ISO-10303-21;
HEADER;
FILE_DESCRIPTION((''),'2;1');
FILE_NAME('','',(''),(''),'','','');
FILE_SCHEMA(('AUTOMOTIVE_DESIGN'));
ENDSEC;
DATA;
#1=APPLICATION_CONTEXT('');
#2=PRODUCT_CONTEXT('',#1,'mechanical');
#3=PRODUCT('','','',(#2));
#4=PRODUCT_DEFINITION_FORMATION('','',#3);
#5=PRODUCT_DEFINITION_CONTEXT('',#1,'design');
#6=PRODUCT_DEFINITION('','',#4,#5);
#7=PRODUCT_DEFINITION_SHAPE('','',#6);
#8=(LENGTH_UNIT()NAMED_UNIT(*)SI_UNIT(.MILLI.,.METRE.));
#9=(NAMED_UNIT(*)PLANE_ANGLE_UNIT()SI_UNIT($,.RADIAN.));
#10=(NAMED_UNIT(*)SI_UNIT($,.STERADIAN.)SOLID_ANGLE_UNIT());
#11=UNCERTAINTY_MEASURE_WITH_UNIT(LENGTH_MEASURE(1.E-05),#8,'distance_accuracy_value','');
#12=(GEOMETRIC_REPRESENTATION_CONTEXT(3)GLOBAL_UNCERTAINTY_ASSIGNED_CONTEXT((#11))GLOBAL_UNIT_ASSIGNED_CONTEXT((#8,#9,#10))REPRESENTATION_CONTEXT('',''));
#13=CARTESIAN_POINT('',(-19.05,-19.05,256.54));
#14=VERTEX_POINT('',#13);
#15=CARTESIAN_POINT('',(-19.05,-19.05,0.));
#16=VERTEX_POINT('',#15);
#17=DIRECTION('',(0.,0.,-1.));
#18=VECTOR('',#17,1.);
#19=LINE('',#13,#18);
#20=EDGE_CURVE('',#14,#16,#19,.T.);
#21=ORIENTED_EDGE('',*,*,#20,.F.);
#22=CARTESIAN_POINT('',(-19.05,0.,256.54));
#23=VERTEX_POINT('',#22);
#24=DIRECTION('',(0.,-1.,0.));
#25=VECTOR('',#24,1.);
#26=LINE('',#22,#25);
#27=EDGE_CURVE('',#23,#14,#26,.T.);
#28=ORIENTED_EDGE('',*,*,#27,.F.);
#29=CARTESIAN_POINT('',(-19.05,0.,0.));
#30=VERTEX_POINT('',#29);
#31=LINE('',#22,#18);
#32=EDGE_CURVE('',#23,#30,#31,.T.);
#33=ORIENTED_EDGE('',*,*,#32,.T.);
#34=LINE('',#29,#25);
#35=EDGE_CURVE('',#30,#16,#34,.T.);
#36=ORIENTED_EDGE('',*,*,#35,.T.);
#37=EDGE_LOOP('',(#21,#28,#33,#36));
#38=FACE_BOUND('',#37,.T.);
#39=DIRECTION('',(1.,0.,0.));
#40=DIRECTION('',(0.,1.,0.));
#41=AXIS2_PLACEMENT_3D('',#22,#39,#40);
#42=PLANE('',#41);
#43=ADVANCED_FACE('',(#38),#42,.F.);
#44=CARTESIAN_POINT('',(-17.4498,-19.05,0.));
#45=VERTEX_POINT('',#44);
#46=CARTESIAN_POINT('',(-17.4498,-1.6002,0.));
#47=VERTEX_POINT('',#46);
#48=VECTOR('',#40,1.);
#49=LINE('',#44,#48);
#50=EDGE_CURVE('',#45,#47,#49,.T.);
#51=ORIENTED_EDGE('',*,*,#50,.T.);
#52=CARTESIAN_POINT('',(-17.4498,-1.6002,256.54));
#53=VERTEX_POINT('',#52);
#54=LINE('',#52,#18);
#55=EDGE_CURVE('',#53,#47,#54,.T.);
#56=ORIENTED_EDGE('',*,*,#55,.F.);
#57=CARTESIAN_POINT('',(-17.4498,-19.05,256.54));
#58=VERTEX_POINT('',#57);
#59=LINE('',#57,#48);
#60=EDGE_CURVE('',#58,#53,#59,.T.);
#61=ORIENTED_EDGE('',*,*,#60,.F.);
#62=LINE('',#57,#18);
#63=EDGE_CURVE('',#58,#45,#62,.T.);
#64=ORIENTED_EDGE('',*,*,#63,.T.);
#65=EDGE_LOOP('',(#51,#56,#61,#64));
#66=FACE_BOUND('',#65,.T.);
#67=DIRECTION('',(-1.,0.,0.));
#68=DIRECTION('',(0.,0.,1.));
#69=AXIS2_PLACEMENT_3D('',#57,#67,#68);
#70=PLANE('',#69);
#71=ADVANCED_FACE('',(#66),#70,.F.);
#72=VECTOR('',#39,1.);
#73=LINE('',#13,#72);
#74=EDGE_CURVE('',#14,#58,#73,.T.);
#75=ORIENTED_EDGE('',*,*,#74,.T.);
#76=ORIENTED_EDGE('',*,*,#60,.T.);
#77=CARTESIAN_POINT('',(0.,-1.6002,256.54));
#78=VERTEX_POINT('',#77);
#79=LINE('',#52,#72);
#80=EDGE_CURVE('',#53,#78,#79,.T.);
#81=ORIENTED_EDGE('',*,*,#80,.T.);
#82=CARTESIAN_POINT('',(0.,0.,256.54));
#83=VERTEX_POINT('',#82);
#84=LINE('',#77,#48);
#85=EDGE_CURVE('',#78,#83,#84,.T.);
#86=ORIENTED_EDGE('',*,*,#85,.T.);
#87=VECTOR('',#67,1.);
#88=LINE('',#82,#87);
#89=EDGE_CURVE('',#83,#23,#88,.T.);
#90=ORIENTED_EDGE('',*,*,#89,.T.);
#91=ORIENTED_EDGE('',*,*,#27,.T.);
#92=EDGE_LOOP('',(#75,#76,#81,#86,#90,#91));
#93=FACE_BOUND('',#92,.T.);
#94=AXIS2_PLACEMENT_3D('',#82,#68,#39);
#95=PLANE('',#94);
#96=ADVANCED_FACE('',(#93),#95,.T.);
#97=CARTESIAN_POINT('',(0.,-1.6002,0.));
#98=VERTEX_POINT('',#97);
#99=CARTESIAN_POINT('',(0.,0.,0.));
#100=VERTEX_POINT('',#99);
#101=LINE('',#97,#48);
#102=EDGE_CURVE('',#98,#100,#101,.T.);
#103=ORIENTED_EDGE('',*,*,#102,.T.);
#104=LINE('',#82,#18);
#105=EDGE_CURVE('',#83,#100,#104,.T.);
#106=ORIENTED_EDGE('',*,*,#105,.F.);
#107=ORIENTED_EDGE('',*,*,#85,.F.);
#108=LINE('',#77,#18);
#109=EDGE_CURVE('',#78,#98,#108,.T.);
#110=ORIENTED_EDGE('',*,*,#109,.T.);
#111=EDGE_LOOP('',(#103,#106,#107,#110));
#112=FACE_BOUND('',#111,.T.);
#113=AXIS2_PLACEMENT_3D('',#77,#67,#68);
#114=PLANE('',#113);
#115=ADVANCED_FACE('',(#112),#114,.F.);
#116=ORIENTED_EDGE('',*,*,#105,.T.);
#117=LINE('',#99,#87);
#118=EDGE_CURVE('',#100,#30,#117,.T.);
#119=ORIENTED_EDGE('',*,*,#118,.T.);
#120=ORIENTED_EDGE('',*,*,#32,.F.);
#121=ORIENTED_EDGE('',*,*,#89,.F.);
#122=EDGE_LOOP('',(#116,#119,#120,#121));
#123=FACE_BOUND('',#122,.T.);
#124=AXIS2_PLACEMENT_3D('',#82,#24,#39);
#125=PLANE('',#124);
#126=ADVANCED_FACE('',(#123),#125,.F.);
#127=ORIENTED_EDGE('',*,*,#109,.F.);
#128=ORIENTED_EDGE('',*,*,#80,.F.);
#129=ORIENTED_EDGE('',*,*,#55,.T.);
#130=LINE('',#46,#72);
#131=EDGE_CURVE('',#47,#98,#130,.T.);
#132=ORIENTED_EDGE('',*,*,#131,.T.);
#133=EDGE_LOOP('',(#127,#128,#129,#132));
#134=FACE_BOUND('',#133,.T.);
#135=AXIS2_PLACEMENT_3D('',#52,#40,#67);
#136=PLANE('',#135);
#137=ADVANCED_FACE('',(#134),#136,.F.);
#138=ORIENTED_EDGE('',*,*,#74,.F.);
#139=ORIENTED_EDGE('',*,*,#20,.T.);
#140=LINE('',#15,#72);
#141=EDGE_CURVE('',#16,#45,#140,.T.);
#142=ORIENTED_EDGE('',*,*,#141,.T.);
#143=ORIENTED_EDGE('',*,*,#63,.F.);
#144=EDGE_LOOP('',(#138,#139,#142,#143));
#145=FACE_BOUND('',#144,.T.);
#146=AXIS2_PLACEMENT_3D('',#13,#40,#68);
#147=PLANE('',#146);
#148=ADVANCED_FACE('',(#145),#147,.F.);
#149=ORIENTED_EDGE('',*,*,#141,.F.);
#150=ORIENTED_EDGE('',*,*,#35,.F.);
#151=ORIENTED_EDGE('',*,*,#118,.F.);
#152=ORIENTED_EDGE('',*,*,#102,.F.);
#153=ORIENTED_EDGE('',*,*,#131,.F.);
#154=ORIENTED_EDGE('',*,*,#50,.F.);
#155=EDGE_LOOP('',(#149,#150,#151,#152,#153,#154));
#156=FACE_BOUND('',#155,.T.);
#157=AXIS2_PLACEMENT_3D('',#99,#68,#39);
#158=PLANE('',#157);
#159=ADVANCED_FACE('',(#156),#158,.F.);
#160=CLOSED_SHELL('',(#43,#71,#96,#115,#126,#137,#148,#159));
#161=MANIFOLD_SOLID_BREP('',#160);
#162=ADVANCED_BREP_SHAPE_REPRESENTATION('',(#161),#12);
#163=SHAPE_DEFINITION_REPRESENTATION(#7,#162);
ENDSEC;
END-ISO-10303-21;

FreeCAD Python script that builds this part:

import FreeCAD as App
import Part
import Sketcher

V = App.Vector
Q = App.Units.Quantity

doc = App.newDocument("Part")
body = doc.addObject("PartDesign::Body", "Body")

# Sketch on XY plane
sketch1 = body.newObject("Sketcher::SketchObject", "Sketch")
sketch1.AttachmentSupport = (doc.getObject("XY_Plane"), [""])
sketch1.MapMode = "FlatFace"
sketch1.addGeometry([
    Part.LineSegment(V(0, 0, 0), V(-19.1, 0, 0)),  # 0
    Part.LineSegment(V(-19.1, 0, 0), V(-19.1, -19.1, 0)),  # 1
    Part.LineSegment(V(-19.1, -19.1, 0), V(-17.4, -19.1, 0)),  # 2
    Part.LineSegment(V(-17.4, -19.1, 0), V(-17.4, -1.6, 0)),  # 3
    Part.LineSegment(V(-17.4, -1.6, 0), V(0, -1.6, 0)),  # 4
    Part.LineSegment(V(0, -1.6, 0), V(0, 0, 0)),  # 5
], False)
sketch1.addConstraint([
    Sketcher.Constraint("Coincident", 0, 2, 1, 1),
    Sketcher.Constraint("Coincident", 1, 2, 2, 1),
    Sketcher.Constraint("Coincident", 2, 2, 3, 1),
    Sketcher.Constraint("Coincident", 3, 2, 4, 1),
    Sketcher.Constraint("Coincident", 4, 2, 5, 1),
    Sketcher.Constraint("Coincident", 5, 2, 0, 1),
    Sketcher.Constraint("Horizontal", 0),
    Sketcher.Constraint("Vertical", 1),
    Sketcher.Constraint("Horizontal", 2),
    Sketcher.Constraint("Vertical", 3),
    Sketcher.Constraint("Horizontal", 4),
    Sketcher.Constraint("Vertical", 5),
    Sketcher.Constraint("Coincident", 5, 2, -1, 1),
    Sketcher.Constraint("Equal", 0, 1),
    Sketcher.Constraint("Equal", 4, 3),
    Sketcher.Constraint("DistanceX", 0, 2, 0, 1, Q("0.75 in")),
    Sketcher.Constraint("DistanceX", 2, 1, 2, 2, Q("0.063 in")),
])
pad1 = body.newObject("PartDesign::Pad", "Pad")
pad1.Profile = sketch1
pad1.Length = Q("10.1 in")

doc.recompute()
